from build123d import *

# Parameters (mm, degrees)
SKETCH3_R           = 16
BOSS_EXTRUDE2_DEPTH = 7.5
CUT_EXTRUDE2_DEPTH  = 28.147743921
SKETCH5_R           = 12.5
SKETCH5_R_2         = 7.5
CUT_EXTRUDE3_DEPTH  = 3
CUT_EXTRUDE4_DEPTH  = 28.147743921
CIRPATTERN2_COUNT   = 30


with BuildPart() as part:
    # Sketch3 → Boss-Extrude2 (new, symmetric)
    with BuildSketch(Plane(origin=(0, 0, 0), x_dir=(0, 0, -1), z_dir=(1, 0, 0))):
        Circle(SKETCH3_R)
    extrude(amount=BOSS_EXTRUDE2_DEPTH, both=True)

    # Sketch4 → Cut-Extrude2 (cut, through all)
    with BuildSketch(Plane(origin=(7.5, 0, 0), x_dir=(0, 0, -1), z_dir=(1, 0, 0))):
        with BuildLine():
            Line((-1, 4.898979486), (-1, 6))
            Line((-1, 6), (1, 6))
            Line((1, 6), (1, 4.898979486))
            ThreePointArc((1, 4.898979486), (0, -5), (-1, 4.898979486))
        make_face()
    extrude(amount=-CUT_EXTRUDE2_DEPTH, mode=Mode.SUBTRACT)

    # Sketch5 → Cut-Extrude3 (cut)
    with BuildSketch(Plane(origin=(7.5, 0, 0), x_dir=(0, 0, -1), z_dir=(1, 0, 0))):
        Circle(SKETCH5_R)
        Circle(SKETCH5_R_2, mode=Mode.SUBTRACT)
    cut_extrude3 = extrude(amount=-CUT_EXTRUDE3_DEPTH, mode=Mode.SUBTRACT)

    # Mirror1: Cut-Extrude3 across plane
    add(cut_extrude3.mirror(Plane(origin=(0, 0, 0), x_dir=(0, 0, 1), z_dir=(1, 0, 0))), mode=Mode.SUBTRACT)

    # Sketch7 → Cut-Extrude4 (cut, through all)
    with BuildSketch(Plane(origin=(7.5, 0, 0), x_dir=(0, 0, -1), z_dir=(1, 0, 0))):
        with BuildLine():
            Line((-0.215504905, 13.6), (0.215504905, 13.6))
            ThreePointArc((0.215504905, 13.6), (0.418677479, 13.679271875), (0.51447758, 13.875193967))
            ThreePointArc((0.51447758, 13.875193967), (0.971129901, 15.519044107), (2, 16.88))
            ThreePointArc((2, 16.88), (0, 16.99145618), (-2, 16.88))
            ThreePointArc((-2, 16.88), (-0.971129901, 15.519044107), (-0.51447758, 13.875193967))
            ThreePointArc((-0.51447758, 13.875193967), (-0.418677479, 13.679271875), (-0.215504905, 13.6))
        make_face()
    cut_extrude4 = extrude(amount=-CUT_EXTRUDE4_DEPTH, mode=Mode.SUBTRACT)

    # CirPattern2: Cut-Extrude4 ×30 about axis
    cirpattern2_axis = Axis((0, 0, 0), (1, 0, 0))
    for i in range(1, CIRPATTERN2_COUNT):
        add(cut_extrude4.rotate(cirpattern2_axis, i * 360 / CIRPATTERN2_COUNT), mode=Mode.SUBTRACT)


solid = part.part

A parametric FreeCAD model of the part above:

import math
import FreeCAD as App
import Part
import Sketcher

doc = App.newDocument("Part")
body = doc.addObject("PartDesign::Body", "Body")

# Sketch on YZ plane
sketch1 = body.newObject("Sketcher::SketchObject", "Sketch")
sketch1.AttachmentSupport = (doc.getObject("YZ_Plane"), [""])
sketch1.MapMode = "FlatFace"
sketch1.addGeometry(Part.Circle(App.Vector(0, 0, 0), App.Vector(0, 0, 1), 16), False)
sketch1.addConstraint([
    Sketcher.Constraint("Coincident", 0, 3, -1, 1),
    Sketcher.Constraint("Diameter", 0, 32.0),
])
pad1 = body.newObject("PartDesign::Pad", "Pad")
pad1.Profile = sketch1
pad1.Length = 15
pad1.Midplane = True

# Sketch on YZ plane
sketch2 = body.newObject("Sketcher::SketchObject", "Sketch001")
sketch2.AttachmentSupport = (doc.getObject("YZ_Plane"), [""])
sketch2.MapMode = "FlatFace"
sketch2.AttachmentOffset = App.Placement(App.Vector(0, 0, 7.5), App.Rotation())
sketch2.addGeometry([
    Part.LineSegment(App.Vector(6, 1, 0), App.Vector(4.9, 1, 0)),
    Part.ArcOfCircle(Part.Circle(App.Vector(0, 0, 0), App.Vector(0, 0, 1), 5), math.radians(12), math.radians(348)),
    Part.LineSegment(App.Vector(4.9, -1, 0), App.Vector(6, -1, 0)),
    Part.LineSegment(App.Vector(6, -1, 0), App.Vector(6, 1, 0)),
], False)
sketch2.addConstraint([
    Sketcher.Constraint("Coincident", 0, 2, 1, 1),
    Sketcher.Constraint("Coincident", 1, 2, 2, 1),
    Sketcher.Constraint("Coincident", 2, 2, 3, 1),
    Sketcher.Constraint("Coincident", 3, 2, 0, 1),
    Sketcher.Constraint("Horizontal", 0),
    Sketcher.Constraint("Horizontal", 2),
    Sketcher.Constraint("Vertical", 3),
    Sketcher.Constraint("Coincident", 1, 3, -1, 1),
    Sketcher.Constraint("Vertical", 0, 2, 1, 2),
    Sketcher.Constraint("Radius", 1, 5.0),
    Sketcher.Constraint("DistanceY", 3, 1, 3, 2, 2.0),
    Sketcher.Constraint("DistanceX", -1, 1, 2, 2, 6.0),
])
pocket1 = body.newObject("PartDesign::Pocket", "Pocket")
pocket1.Profile = sketch2
pocket1.Type = "ThroughAll"

# Sketch on YZ plane
sketch3 = body.newObject("Sketcher::SketchObject", "Sketch002")
sketch3.AttachmentSupport = (doc.getObject("YZ_Plane"), [""])
sketch3.MapMode = "FlatFace"
sketch3.AttachmentOffset = App.Placement(App.Vector(0, 0, 7.5), App.Rotation())
sketch3.addGeometry([
    Part.Circle(App.Vector(0, 0, 0), App.Vector(0, 0, 1), 12),
    Part.Circle(App.Vector(0, 0, 0), App.Vector(0, 0, 1), 8),
], False)
sketch3.addConstraint([
    Sketcher.Constraint("Coincident", 0, 3, -1, 1),
    Sketcher.Constraint("Coincident", 1, 3, -1, 1),
    Sketcher.Constraint("Diameter", 0, 25.0),
    Sketcher.Constraint("Diameter", 1, 15.0),
])
pocket2 = body.newObject("PartDesign::Pocket", "Pocket001")
pocket2.Profile = sketch3
pocket2.Length = 3
doc.recompute()

mirrored = body.newObject("PartDesign::Mirrored", "Mirrored")
mirrored.Originals = [pocket2]
mirrored.MirrorPlane = (doc.getObject("YZ_Plane"), [""])
body.Tip = mirrored

# Sketch on YZ plane
sketch4 = body.newObject("Sketcher::SketchObject", "Sketch003")
sketch4.AttachmentSupport = (doc.getObject("YZ_Plane"), [""])
sketch4.MapMode = "FlatFace"
sketch4.AttachmentOffset = App.Placement(App.Vector(0, 0, 7.5), App.Rotation())
sketch4.addGeometry([
    Part.LineSegment(App.Vector(13.6, 0.22, 0), App.Vector(13.6, -0.22, 0)),  # 0
    Part.ArcOfCircle(Part.Circle(App.Vector(13.9, -0.22, 0), App.Vector(0, 0, 1), 0.3), math.radians(180), math.radians(265)),  # 1
    Part.ArcOfCircle(Part.Circle(App.Vector(13.5, -5.06, 0), App.Vector(0, 0, 1), 4.56), math.radians(42), math.radians(85)),  # 2
    Part.ArcOfCircle(Part.Circle(App.Vector(-1.01, 0, 0), App.Vector(0, 0, 1), 18), math.radians(-6.38), math.radians(6.38)),  # 3
    Part.ArcOfCircle(Part.Circle(App.Vector(13.5, 5.06, 0), App.Vector(0, 0, 1), 4.56), math.radians(-85), math.radians(-42)),  # 4
    Part.ArcOfCircle(Part.Circle(App.Vector(13.9, 0.22, 0), App.Vector(0, 0, 1), 0.3), math.radians(95), math.radians(180)),  # 5
], False)
sketch4.addConstraint([
    Sketcher.Constraint("Tangent", 0, 2, 1, 1),
    Sketcher.Constraint("Tangent", 1, 2, 2, 2),
    Sketcher.Constraint("Coincident", 2, 1, 3, 1),
    Sketcher.Constraint("Coincident", 3, 2, 4, 2),
    Sketcher.Constraint("Tangent", 4, 1, 5, 1),
    Sketcher.Constraint("Tangent", 5, 2, 0, 1),
    Sketcher.Constraint("Vertical", 0),
    Sketcher.Constraint("Equal", 2, 4),
    Sketcher.Constraint("Equal", 1, 5),
    Sketcher.Constraint("Symmetric", 2, 3, 4, 3, -1),
    Sketcher.Constraint("PointOnObject", 3, 3, -1),
    Sketcher.Constraint("Radius", 3, 18.0),
    Sketcher.Constraint("Radius", 1, 0.3),
    Sketcher.Constraint("Radius", 2, 4.56),
    Sketcher.Constraint("DistanceY", 2, 1, -1, 1, 2.0),
    Sketcher.Constraint("DistanceX", -1, 1, 1, 3, 13.9),
    Sketcher.Constraint("DistanceX", -1, 1, 2, 1, 16.88),
    Sketcher.Constraint("DistanceY", 0, 2, 0, 1, 0.43101),
])
pocket3 = body.newObject("PartDesign::Pocket", "Pocket002")
pocket3.Profile = sketch4
pocket3.Type = "ThroughAll"
doc.recompute()

polarpattern = body.newObject("PartDesign::PolarPattern", "PolarPattern")
polarpattern.Originals = [pocket3]
polarpattern.Axis = (doc.getObject("X_Axis"), [""])
polarpattern.Angle = 360
polarpattern.Occurrences = 30
body.Tip = polarpattern

doc.recompute()
